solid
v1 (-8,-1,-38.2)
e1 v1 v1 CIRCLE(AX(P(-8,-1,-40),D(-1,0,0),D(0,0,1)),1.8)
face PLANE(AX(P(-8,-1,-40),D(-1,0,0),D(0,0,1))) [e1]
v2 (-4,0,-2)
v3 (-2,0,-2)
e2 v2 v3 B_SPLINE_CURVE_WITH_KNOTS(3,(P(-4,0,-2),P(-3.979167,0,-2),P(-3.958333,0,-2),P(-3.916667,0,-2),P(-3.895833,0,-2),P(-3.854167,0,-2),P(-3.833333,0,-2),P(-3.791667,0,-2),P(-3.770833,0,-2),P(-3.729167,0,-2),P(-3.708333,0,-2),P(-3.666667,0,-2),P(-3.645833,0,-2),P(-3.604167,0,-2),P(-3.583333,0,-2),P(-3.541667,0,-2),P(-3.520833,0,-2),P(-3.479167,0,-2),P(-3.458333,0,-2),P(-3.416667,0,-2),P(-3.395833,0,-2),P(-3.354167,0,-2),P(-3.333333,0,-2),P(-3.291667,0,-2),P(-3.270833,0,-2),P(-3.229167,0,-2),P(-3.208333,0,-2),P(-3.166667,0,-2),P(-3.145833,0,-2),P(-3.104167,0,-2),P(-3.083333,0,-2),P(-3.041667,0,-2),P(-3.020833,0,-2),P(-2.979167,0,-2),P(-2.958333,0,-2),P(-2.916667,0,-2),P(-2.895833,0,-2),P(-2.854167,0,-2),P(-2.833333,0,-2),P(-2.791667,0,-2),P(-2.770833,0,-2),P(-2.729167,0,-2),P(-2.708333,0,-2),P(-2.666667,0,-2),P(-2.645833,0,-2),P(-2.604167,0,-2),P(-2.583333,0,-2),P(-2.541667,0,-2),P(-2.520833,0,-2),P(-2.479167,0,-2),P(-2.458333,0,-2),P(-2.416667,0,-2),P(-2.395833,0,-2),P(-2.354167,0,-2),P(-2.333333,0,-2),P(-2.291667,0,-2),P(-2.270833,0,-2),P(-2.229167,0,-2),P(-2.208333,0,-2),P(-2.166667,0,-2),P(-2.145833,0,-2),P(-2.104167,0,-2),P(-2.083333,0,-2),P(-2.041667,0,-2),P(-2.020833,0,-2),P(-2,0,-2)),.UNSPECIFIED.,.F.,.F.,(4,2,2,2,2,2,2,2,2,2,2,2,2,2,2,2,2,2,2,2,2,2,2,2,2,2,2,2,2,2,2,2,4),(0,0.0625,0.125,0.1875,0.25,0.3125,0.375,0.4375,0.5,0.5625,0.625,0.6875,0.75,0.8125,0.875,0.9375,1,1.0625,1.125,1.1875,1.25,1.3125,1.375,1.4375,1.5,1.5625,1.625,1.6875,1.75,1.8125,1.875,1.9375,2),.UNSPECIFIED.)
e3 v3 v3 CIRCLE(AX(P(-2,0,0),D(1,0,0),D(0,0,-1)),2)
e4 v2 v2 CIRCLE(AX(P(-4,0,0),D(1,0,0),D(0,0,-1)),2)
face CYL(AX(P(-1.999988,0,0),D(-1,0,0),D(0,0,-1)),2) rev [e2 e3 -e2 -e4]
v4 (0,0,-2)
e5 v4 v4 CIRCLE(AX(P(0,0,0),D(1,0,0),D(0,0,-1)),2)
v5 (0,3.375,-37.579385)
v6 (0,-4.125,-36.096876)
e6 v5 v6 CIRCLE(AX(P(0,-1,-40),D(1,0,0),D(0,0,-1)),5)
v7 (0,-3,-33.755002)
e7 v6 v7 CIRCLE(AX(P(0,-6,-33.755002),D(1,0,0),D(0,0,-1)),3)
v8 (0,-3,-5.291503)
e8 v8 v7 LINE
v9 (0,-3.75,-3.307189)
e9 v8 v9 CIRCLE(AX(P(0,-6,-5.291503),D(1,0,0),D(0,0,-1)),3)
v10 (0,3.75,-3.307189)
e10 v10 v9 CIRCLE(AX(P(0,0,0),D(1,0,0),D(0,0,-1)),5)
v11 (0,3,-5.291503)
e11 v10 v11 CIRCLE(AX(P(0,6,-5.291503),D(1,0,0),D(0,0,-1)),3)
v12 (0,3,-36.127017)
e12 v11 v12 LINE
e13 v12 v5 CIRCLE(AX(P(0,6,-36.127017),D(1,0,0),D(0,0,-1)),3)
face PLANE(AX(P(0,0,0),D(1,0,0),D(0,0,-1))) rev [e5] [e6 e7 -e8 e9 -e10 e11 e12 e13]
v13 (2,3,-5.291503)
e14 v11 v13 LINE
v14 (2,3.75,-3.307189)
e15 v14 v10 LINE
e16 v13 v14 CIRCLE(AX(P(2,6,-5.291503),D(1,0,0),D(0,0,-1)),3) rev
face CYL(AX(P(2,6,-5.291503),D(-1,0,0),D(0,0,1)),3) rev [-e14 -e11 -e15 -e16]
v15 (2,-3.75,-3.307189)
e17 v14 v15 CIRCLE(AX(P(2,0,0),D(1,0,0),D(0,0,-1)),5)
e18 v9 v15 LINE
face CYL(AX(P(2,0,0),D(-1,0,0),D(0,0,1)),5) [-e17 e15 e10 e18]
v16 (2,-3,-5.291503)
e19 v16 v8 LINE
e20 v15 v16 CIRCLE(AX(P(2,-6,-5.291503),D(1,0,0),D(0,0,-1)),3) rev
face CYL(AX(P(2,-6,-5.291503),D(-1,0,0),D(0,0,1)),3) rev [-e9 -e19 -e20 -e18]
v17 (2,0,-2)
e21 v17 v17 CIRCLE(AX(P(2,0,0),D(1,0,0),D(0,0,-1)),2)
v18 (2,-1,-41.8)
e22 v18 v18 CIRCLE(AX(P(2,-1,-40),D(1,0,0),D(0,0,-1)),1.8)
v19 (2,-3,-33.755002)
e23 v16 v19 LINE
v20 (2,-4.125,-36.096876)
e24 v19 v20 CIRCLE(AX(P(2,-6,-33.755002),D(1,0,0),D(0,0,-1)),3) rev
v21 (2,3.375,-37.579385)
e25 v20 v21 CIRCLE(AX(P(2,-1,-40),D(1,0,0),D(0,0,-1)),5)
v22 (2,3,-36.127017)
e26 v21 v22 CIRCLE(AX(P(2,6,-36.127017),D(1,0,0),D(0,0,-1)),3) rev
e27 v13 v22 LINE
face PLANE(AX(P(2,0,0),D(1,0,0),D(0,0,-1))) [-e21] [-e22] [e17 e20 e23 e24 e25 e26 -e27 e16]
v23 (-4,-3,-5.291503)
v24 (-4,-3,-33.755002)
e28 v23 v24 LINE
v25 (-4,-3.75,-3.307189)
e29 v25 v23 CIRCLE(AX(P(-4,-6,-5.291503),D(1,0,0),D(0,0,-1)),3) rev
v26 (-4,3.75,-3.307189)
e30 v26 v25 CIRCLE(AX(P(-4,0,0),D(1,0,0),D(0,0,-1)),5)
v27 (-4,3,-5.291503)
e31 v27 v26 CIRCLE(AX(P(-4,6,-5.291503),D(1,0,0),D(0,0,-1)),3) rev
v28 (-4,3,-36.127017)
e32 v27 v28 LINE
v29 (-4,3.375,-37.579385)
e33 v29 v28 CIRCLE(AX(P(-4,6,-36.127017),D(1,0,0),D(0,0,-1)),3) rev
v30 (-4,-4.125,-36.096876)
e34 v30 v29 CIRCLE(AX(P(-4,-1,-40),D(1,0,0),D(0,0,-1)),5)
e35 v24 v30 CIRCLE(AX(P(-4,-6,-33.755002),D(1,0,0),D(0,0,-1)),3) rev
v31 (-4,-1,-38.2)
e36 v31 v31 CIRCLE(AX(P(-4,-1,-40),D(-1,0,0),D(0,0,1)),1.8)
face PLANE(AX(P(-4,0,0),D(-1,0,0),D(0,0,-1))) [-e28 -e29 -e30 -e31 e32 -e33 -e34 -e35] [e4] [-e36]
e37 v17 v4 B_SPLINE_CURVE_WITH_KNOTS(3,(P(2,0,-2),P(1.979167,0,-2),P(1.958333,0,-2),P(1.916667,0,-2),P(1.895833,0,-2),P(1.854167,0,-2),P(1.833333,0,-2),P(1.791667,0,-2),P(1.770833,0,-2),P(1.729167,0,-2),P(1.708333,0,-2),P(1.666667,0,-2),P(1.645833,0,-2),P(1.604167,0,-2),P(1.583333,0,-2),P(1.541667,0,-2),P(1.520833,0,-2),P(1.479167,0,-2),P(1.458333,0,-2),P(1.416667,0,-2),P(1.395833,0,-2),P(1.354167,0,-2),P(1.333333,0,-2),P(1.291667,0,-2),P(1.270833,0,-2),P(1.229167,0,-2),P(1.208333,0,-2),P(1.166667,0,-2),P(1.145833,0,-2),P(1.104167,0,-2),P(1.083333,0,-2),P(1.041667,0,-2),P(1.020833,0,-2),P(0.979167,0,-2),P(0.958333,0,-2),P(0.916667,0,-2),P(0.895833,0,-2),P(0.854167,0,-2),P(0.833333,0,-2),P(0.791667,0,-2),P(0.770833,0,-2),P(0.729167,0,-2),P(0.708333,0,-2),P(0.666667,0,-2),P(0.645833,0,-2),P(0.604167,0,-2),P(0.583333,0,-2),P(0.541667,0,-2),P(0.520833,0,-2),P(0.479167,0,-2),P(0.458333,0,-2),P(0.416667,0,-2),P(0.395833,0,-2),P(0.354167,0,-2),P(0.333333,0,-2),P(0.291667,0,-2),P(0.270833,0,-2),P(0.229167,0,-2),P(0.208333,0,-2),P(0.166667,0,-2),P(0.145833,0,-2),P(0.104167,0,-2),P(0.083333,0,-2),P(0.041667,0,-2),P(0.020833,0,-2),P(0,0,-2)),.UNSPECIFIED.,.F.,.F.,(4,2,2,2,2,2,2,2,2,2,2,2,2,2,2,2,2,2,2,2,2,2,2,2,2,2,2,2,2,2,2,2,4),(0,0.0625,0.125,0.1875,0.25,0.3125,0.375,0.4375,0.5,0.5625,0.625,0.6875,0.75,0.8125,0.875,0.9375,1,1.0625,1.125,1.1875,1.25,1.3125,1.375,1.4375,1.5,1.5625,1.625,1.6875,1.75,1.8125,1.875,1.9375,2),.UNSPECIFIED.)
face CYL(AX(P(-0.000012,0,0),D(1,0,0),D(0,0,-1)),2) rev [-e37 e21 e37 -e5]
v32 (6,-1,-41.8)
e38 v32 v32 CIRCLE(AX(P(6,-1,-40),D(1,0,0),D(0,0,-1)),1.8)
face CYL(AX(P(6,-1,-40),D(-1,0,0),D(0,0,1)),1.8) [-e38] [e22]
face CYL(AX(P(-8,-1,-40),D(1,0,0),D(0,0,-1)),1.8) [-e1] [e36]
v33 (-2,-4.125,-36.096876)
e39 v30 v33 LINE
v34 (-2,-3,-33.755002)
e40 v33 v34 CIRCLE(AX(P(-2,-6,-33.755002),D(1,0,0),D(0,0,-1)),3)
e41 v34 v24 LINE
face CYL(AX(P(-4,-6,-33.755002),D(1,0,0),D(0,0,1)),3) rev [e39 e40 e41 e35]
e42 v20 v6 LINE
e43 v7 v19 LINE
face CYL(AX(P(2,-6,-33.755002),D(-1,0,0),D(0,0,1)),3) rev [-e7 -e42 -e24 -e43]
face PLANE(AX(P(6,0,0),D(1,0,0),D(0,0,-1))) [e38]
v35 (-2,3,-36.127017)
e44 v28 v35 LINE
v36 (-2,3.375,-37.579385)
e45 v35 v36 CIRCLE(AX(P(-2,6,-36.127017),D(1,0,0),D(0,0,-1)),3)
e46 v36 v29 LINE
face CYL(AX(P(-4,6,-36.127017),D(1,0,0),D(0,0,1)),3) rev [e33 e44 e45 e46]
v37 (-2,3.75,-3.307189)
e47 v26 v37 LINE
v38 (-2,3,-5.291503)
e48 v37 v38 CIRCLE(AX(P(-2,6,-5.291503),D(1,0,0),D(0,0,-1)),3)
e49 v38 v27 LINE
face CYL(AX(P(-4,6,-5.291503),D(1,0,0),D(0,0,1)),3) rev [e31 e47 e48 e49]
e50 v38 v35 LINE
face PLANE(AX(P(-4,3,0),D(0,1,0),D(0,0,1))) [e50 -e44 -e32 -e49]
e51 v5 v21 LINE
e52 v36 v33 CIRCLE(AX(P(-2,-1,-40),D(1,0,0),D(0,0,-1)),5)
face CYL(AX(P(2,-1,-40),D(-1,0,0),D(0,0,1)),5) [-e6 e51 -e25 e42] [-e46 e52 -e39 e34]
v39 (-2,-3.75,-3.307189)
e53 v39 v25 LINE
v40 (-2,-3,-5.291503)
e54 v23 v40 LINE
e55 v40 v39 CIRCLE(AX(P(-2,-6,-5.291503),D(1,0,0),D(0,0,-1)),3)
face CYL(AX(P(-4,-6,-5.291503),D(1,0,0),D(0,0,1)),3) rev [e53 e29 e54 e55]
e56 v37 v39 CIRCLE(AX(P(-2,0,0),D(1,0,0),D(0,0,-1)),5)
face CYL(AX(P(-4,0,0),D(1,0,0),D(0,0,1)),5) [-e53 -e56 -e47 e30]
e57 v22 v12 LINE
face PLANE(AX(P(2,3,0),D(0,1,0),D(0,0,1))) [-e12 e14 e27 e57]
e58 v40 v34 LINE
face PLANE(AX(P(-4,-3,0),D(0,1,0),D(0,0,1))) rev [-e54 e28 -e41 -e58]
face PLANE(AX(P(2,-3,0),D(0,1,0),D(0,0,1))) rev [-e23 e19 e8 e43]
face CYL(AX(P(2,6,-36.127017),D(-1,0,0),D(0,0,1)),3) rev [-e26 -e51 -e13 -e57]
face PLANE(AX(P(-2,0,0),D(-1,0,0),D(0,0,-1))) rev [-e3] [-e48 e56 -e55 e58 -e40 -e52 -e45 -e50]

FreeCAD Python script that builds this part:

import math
import FreeCAD as App
import Part
import Sketcher

V = App.Vector


def edges_at(feature, points):
    """Names of the edges that pass closest to the given points."""
    edges = feature.Shape.Edges
    near = lambda p: min(range(len(edges)), key=lambda i: edges[i].distToShape(Part.Vertex(*p))[0])
    return sorted({f"Edge{near(p) + 1}" for p in points})

doc = App.newDocument("Part")
body = doc.addObject("PartDesign::Body", "Body")

sketch1 = doc.addObject("Sketcher::SketchObject", "Sketch")
body.addObject(sketch1)
sketch1.AttachmentSupport = (doc.YZ_Plane, [""])
sketch1.MapMode = "FlatFace"
sketch1.addGeometry([
    Part.LineSegment(V(-3, -4, 0), V(-3, -35, 0)),
    Part.ArcOfCircle(Part.Circle(V(-1, -40, 0), V(0, 0, 1), 5), math.radians(114), math.radians(397)),
    Part.LineSegment(V(3, -37, 0), V(3, -4, 0)),
    Part.ArcOfCircle(Part.Circle(V(0, 0, 0), V(0, 0, 1), 5), math.radians(-53), math.radians(233)),
], False)
sketch1.addConstraint([
    Sketcher.Constraint("Coincident", 0, 2, 1, 1),
    Sketcher.Constraint("Coincident", 1, 2, 2, 1),
    Sketcher.Constraint("Coincident", 2, 2, 3, 1),
    Sketcher.Constraint("Coincident", 3, 2, 0, 1),
    Sketcher.Constraint("Vertical", 0),
    Sketcher.Constraint("Vertical", 2),
    Sketcher.Constraint("Coincident", 3, 3, -1, 1),
    Sketcher.Constraint("Equal", 1, 3),
    Sketcher.Constraint("Horizontal", 2, 2, 3, 2),
    Sketcher.Constraint("Radius", 1, 5.0),
    Sketcher.Constraint("DistanceY", 2, 1, 2, 2, 33.0),
    Sketcher.Constraint("DistanceX", 1, 3, -1, 1, 1.0),
    Sketcher.Constraint("DistanceY", 1, 3, -1, 1, 40.0),
])
pad1 = doc.addObject("PartDesign::Pad", "Pad")
body.addObject(pad1)
pad1.Profile = sketch1
pad1.Length = 2

sketch2 = doc.addObject("Sketcher::SketchObject", "Sketch001")
body.addObject(sketch2)
sketch2.AttachmentSupport = (doc.YZ_Plane, [""])
sketch2.MapMode = "FlatFace"
sketch2.addGeometry([
    Part.Circle(V(0, 0, 0), V(0, 0, 1), 2),
    Part.Circle(V(-1, -40, 0), V(0, 0, 1), 2),
], False)
sketch2.addConstraint([
    Sketcher.Constraint("Coincident", 0, 3, -1, 1),
    Sketcher.Constraint("Equal", 0, 1),
    Sketcher.Constraint("Diameter", 0, 4.0),
    Sketcher.Constraint("DistanceX", 1, 3, -1, 1, 1.0),
    Sketcher.Constraint("DistanceY", 1, 3, -1, 1, 40.0),
])
pocket1 = doc.addObject("PartDesign::Pocket", "Pocket")
body.addObject(pocket1)
pocket1.Profile = sketch2
pocket1.Type = "ThroughAll"
pocket1.Midplane = True
doc.recompute()

fillet = doc.addObject("PartDesign::Fillet", "Fillet")
body.addObject(fillet)
fillet.Base = (pocket1, edges_at(pocket1, [
    (1, -3, -35.417),
    (1, 3, -37),
    (1, 3, -4),
    (1, -3, -4),
]))
fillet.Radius = 3

sketch3 = doc.addObject("Sketcher::SketchObject", "Sketch002")
body.addObject(sketch3)
sketch3.AttachmentSupport = (doc.YZ_Plane, [""])
sketch3.MapMode = "FlatFace"
sketch3.AttachmentOffset = App.Placement(V(0, 0, -1), App.Rotation())
sketch3.addGeometry([
    Part.ArcOfCircle(Part.Circle(V(-1, -40, 0), V(0, 0, 1), 5), math.radians(37), math.radians(114)),
    Part.LineSegment(V(-3, -35.4, 0), V(-3, -40, 0)),
    Part.ArcOfCircle(Part.Circle(V(-1, -40, 0), V(0, 0, 1), 2), math.radians(0), math.radians(180)),
    Part.LineSegment(V(1, -40, 0), V(3, -40, 0)),
    Part.LineSegment(V(3, -40, 0), V(3, -37, 0)),
    Part.LineSegment(V(-3, -40, 0), V(-3, -35.4, 0)),
    Part.ArcOfCircle(Part.Circle(V(-1, -40, 0), V(0, 0, 1), 5), math.radians(114), math.radians(270)),
    Part.ArcOfCircle(Part.Circle(V(-1, -40, 0), V(0, 0, 1), 5), math.radians(-90), math.radians(37)),
    Part.LineSegment(V(3, -37, 0), V(3, -40, 0)),
    Part.LineSegment(V(3, -40, 0), V(1, -40, 0)),
    Part.ArcOfCircle(Part.Circle(V(-1, -40, 0), V(0, 0, 1), 2), math.radians(-90), math.radians(0)),
    Part.ArcOfCircle(Part.Circle(V(-1, -40, 0), V(0, 0, 1), 2), math.radians(-180), math.radians(-90)),
], False)
sketch3.addConstraint([
    Sketcher.Constraint("Coincident", 0, 2, 1, 1),
    Sketcher.Constraint("Tangent", 1, 2, 2, 2),
    Sketcher.Constraint("Coincident", 2, 1, 3, 1),
    Sketcher.Constraint("Coincident", 3, 2, 4, 1),
    Sketcher.Constraint("Coincident", 4, 2, 0, 1),
    Sketcher.Constraint("Coincident", 5, 2, 6, 1),
    Sketcher.Constraint("Tangent", 6, 2, 7, 1),
    Sketcher.Constraint("Coincident", 7, 2, 8, 1),
    Sketcher.Constraint("Coincident", 8, 2, 9, 1),
    Sketcher.Constraint("Coincident", 9, 2, 10, 2),
    Sketcher.Constraint("Tangent", 10, 1, 11, 2),
    Sketcher.Constraint("Tangent", 11, 1, 5, 1),
    Sketcher.Constraint("Vertical", 1),
    Sketcher.Constraint("Horizontal", 3),
    Sketcher.Constraint("Vertical", 4),
    Sketcher.Constraint("Vertical", 5),
    Sketcher.Constraint("Vertical", 8),
    Sketcher.Constraint("Horizontal", 9),
    Sketcher.Constraint("Coincident", 2, 3, 0, 3),
    Sketcher.Constraint("Coincident", 6, 3, 0, 3),
    Sketcher.Constraint("Coincident", 10, 3, 0, 3),
    Sketcher.Constraint("Coincident", 5, 2, 0, 2),
    Sketcher.Constraint("Coincident", 7, 2, 4, 2),
    Sketcher.Constraint("Coincident", 9, 2, 2, 1),
    Sketcher.Constraint("Symmetric", 1, 2, 3, 2, -2),
    Sketcher.Constraint("Vertical", 11, 3, 6, 2),
    Sketcher.Constraint("Vertical", 6, 2, 10, 1),
    Sketcher.Constraint("Radius", 0, 5.0),
    Sketcher.Constraint("Radius", 2, 2.0),
    Sketcher.Constraint("DistanceX", 3, 1, 3, 2, 2.0),
    Sketcher.Constraint("DistanceY", 0, 3, -1, 1, 40.0),
])
pad2 = doc.addObject("PartDesign::Pad", "Pad001")
body.addObject(pad2)
pad2.Profile = sketch3
pad2.Length = 1
body2 = doc.addObject("PartDesign::Body", "Body001")
doc.recompute()

body2.BaseFeature = body
doc.recompute()

mirroring = doc.addObject("Part::Mirroring", "Mirroring")
mirroring.Source = body
mirroring.Base = V(-1, 0, 0)
mirroring.Normal = V(-1, 0, 0)
body3 = doc.addObject("PartDesign::Body", "Body002")
body3.BaseFeature = mirroring
boolean = doc.addObject("PartDesign::Boolean", "Boolean")
body2.addObject(boolean)
boolean.Type = "Fuse"
boolean.addObjects([body3])
doc.recompute()

sketch4 = doc.addObject("Sketcher::SketchObject", "Sketch003")
body2.addObject(sketch4)
sketch4.AttachmentSupport = (doc.getObject("YZ_Plane001"), [""])
sketch4.MapMode = "FlatFace"
sketch4.AttachmentOffset = App.Placement(V(0, 0, 2), App.Rotation())
sketch4.addGeometry(Part.Circle(V(-1, -40, 0), V(0, 0, 1), 2), False)
sketch4.addConstraint([
    Sketcher.Constraint("Diameter", 0, 4.0),
    Sketcher.Constraint("DistanceX", 0, 3, -1, 1, 1.0),
    Sketcher.Constraint("DistanceY", 0, 3, -1, 1, 40.0),
])
pad3 = doc.addObject("PartDesign::Pad", "Pad002")
body2.addObject(pad3)
pad3.Profile = sketch4
pad3.Length = 6
pad3.Reversed = True

sketch5 = doc.addObject("Sketcher::SketchObject", "Sketch004")
body2.addObject(sketch5)
sketch5.AttachmentSupport = (doc.getObject("YZ_Plane001"), [""])
sketch5.MapMode = "FlatFace"
sketch5.AttachmentOffset = App.Placement(V(0, 0, 2), App.Rotation())
sketch5.addGeometry(Part.Circle(V(-1, -40, 0), V(0, 0, 1), 1.8), False)
sketch5.addConstraint([
    Sketcher.Constraint("Diameter", 0, 3.6),
    Sketcher.Constraint("DistanceX", 0, 3, -1, 1, 1.0),
    Sketcher.Constraint("DistanceY", 0, 3, -1, 1, 40.0),
])
pad4 = doc.addObject("PartDesign::Pad", "Pad003")
body2.addObject(pad4)
pad4.Profile = sketch5
pad4.Length = 4

sketch6 = doc.addObject("Sketcher::SketchObject", "Sketch005")
body2.addObject(sketch6)
sketch6.AttachmentSupport = (doc.getObject("YZ_Plane001"), [""])
sketch6.MapMode = "FlatFace"
sketch6.AttachmentOffset = App.Placement(V(0, 0, -8), App.Rotation())
sketch6.addGeometry(Part.Circle(V(-1, -40, 0), V(0, 0, 1), 1.8), False)
sketch6.addConstraint([
    Sketcher.Constraint("Diameter", 0, 3.6),
    Sketcher.Constraint("DistanceX", 0, 3, -1, 1, 1.0),
    Sketcher.Constraint("DistanceY", 0, 3, -1, 1, 40.0),
])
pad5 = doc.addObject("PartDesign::Pad", "Pad004")
body2.addObject(pad5)
pad5.Profile = sketch6
pad5.Length = 4
mirroring.Visibility = False

doc.recompute()
